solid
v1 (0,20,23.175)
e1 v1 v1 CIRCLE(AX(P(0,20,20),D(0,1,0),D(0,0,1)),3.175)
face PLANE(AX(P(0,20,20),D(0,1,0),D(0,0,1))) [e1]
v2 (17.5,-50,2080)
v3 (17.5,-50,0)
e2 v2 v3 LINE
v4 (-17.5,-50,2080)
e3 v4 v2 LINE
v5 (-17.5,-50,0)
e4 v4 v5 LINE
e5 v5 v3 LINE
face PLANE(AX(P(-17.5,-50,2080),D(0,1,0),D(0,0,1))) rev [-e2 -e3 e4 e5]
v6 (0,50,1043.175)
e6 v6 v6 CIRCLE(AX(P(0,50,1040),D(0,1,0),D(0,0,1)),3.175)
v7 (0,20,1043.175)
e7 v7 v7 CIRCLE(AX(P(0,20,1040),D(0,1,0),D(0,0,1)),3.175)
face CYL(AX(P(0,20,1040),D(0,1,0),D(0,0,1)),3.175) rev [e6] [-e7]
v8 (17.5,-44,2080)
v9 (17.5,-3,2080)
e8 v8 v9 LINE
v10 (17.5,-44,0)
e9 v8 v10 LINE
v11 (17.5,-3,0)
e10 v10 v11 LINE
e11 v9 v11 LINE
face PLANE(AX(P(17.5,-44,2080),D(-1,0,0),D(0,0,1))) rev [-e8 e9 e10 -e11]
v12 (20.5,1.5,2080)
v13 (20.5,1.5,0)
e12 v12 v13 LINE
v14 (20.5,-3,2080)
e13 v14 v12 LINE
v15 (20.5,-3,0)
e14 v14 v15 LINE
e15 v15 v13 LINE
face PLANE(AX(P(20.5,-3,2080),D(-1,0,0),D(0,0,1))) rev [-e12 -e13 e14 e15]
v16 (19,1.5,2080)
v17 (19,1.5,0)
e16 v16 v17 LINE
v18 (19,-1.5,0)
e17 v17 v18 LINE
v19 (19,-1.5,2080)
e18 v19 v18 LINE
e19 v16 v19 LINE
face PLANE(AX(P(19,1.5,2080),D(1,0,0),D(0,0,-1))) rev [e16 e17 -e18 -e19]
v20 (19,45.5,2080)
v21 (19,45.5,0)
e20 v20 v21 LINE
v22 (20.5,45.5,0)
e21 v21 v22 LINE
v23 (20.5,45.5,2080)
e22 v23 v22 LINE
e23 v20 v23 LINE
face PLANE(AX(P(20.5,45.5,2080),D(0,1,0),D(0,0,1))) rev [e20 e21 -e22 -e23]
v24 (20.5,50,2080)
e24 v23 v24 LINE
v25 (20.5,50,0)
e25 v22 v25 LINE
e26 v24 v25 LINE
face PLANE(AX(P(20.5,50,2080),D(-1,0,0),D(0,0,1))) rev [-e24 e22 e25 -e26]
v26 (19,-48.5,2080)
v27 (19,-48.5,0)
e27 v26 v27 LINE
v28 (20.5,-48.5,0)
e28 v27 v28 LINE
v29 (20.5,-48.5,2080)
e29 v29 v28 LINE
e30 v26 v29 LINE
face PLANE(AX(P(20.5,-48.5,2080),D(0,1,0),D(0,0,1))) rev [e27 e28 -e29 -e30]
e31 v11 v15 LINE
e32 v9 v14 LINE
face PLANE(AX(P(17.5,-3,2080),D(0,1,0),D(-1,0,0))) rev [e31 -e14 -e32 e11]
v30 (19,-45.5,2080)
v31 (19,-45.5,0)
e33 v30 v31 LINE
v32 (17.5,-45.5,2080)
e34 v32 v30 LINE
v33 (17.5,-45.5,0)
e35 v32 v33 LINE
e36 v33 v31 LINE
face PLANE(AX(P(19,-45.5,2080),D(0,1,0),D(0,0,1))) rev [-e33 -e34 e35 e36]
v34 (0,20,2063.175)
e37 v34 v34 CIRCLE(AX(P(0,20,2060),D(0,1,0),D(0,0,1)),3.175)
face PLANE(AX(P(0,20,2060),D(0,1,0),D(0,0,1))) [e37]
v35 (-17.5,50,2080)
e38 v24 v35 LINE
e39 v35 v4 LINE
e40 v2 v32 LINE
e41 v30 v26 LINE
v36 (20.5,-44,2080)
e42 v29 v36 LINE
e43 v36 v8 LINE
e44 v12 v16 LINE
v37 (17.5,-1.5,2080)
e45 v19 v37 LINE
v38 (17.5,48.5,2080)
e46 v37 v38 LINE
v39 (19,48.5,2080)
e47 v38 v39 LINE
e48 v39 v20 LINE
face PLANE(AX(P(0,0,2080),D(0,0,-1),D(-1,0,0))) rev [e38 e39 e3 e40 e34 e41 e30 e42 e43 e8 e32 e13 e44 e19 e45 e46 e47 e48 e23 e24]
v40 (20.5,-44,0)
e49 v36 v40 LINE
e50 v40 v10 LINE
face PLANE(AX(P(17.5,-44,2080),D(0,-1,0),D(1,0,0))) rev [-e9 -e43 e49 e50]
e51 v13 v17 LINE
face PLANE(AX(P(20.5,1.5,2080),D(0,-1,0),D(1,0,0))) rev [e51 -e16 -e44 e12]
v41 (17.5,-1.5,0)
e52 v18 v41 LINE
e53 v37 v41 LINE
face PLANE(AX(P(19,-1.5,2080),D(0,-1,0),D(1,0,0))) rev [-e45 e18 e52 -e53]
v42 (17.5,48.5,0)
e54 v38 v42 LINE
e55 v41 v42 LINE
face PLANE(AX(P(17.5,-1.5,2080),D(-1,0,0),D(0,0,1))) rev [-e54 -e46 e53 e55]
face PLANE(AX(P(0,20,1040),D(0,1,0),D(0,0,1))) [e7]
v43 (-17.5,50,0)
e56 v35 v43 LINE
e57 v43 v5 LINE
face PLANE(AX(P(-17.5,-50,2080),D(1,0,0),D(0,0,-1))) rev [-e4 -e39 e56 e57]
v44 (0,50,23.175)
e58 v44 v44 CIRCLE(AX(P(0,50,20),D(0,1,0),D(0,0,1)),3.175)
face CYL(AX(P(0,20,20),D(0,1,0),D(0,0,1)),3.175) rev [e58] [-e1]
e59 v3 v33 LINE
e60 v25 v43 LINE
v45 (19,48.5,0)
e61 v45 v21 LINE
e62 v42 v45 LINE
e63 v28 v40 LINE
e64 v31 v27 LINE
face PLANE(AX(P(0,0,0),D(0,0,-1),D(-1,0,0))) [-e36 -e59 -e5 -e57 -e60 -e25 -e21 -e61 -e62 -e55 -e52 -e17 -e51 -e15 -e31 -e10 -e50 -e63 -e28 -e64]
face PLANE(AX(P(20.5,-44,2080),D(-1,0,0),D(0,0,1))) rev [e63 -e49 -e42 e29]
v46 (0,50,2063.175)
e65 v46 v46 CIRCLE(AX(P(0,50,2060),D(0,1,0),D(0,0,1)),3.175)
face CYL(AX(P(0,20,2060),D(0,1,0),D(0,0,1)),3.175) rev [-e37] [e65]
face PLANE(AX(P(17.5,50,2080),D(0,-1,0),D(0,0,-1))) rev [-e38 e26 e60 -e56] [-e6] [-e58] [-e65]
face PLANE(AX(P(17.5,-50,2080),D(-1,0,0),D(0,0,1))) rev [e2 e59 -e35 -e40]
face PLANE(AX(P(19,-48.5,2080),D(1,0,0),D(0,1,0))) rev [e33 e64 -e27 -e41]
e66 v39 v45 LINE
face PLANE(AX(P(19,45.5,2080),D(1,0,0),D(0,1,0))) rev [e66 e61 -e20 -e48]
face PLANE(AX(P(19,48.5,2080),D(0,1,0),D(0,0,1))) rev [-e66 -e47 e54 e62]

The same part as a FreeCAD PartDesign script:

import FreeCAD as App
import Part
import Sketcher
from FreeCAD import Vector
Q = App.Units.Quantity

doc = App.newDocument("Part")
params = doc.addObject("Spreadsheet::Sheet", "Params")
for row, (alias, value) in enumerate([
    ("sketch1_width", "38 mm"),
    ("sketch1_width2", "35 mm"),
    ("sketch1_height", "100 mm"),
    ("sketch1_height2", "41 mm"),
    ("sketch1_height3", "50 mm"),
    ("pad1_length", "2080 mm"),
    ("sketch2_diameter", "6.35 mm"),
    ("pocket1_length", "30 mm"),
], start=1):
    params.set(f"A{row}", alias)
    params.set(f"B{row}", "=" + value)
    params.setAlias(f"B{row}", alias)

body = doc.addObject("PartDesign::Body", "Body")

# Sketch on XY plane
sketch1 = body.newObject("Sketcher::SketchObject", "Sketch")
sketch1.AttachmentSupport = (doc.getObject("XY_Plane"), [""])
sketch1.MapMode = "FlatFace"
sketch1.addGeometry(Part.LineSegment(Vector(20.5, 50, 0), Vector(-17.5, 50, 0)), False)
sketch1.addGeometry(Part.LineSegment(Vector(-17.5, 50, 0), Vector(-17.5, -50, 0)), False)
sketch1.addGeometry(Part.LineSegment(Vector(-17.5, -50, 0), Vector(17.5, -50, 0)), False)
sketch1.addGeometry(Part.LineSegment(Vector(17.5, -50, 0), Vector(17.5, -45.5, 0)), False)
sketch1.addGeometry(Part.LineSegment(Vector(17.5, -45.5, 0), Vector(19, -45.5, 0)), False)
sketch1.addGeometry(Part.LineSegment(Vector(19, -45.5, 0), Vector(19, -48.5, 0)), False)
sketch1.addGeometry(Part.LineSegment(Vector(19, -48.5, 0), Vector(20.5, -48.5, 0)), False)
sketch1.addGeometry(Part.LineSegment(Vector(20.5, -48.5, 0), Vector(20.5, -44, 0)), False)
sketch1.addGeometry(Part.LineSegment(Vector(20.5, -44, 0), Vector(17.5, -44, 0)), False)
sketch1.addGeometry(Part.LineSegment(Vector(17.5, -44, 0), Vector(17.5, -3, 0)), False)
sketch1.addGeometry(Part.LineSegment(Vector(17.5, -3, 0), Vector(20.5, -3, 0)), False)
sketch1.addGeometry(Part.LineSegment(Vector(20.5, -3, 0), Vector(20.5, 1.5, 0)), False)
sketch1.addGeometry(Part.LineSegment(Vector(20.5, 1.5, 0), Vector(19, 1.5, 0)), False)
sketch1.addGeometry(Part.LineSegment(Vector(19, 1.5, 0), Vector(19, -1.5, 0)), False)
sketch1.addGeometry(Part.LineSegment(Vector(19, -1.5, 0), Vector(17.5, -1.5, 0)), False)
sketch1.addGeometry(Part.LineSegment(Vector(17.5, -1.5, 0), Vector(17.5, 48.5, 0)), False)
sketch1.addGeometry(Part.LineSegment(Vector(17.5, 48.5, 0), Vector(19, 48.5, 0)), False)
sketch1.addGeometry(Part.LineSegment(Vector(19, 48.5, 0), Vector(19, 45.5, 0)), False)
sketch1.addGeometry(Part.LineSegment(Vector(19, 45.5, 0), Vector(20.5, 45.5, 0)), False)
sketch1.addGeometry(Part.LineSegment(Vector(20.5, 45.5, 0), Vector(20.5, 50, 0)), False)
sketch1.addConstraint(Sketcher.Constraint("Coincident", 0, 2, 1, 1))
sketch1.addConstraint(Sketcher.Constraint("Coincident", 1, 2, 2, 1))
sketch1.addConstraint(Sketcher.Constraint("Coincident", 2, 2, 3, 1))
sketch1.addConstraint(Sketcher.Constraint("Coincident", 3, 2, 4, 1))
sketch1.addConstraint(Sketcher.Constraint("Coincident", 4, 2, 5, 1))
sketch1.addConstraint(Sketcher.Constraint("Coincident", 5, 2, 6, 1))
sketch1.addConstraint(Sketcher.Constraint("Coincident", 6, 2, 7, 1))
sketch1.addConstraint(Sketcher.Constraint("Coincident", 7, 2, 8, 1))
sketch1.addConstraint(Sketcher.Constraint("Coincident", 8, 2, 9, 1))
sketch1.addConstraint(Sketcher.Constraint("Coincident", 9, 2, 10, 1))
sketch1.addConstraint(Sketcher.Constraint("Coincident", 10, 2, 11, 1))
sketch1.addConstraint(Sketcher.Constraint("Coincident", 11, 2, 12, 1))
sketch1.addConstraint(Sketcher.Constraint("Coincident", 12, 2, 13, 1))
sketch1.addConstraint(Sketcher.Constraint("Coincident", 13, 2, 14, 1))
sketch1.addConstraint(Sketcher.Constraint("Coincident", 14, 2, 15, 1))
sketch1.addConstraint(Sketcher.Constraint("Coincident", 15, 2, 16, 1))
sketch1.addConstraint(Sketcher.Constraint("Coincident", 16, 2, 17, 1))
sketch1.addConstraint(Sketcher.Constraint("Coincident", 17, 2, 18, 1))
sketch1.addConstraint(Sketcher.Constraint("Coincident", 18, 2, 19, 1))
sketch1.addConstraint(Sketcher.Constraint("Coincident", 19, 2, 0, 1))
sketch1.addConstraint(Sketcher.Constraint("Horizontal", 0))
sketch1.addConstraint(Sketcher.Constraint("Vertical", 1))
sketch1.addConstraint(Sketcher.Constraint("Horizontal", 2))
sketch1.addConstraint(Sketcher.Constraint("Vertical", 3))
sketch1.addConstraint(Sketcher.Constraint("Horizontal", 4))
sketch1.addConstraint(Sketcher.Constraint("Vertical", 5))
sketch1.addConstraint(Sketcher.Constraint("Horizontal", 6))
sketch1.addConstraint(Sketcher.Constraint("Vertical", 7))
sketch1.addConstraint(Sketcher.Constraint("Horizontal", 8))
sketch1.addConstraint(Sketcher.Constraint("Vertical", 9))
sketch1.addConstraint(Sketcher.Constraint("Horizontal", 10))
sketch1.addConstraint(Sketcher.Constraint("Vertical", 11))
sketch1.addConstraint(Sketcher.Constraint("Horizontal", 12))
sketch1.addConstraint(Sketcher.Constraint("Vertical", 13))
sketch1.addConstraint(Sketcher.Constraint("Horizontal", 14))
sketch1.addConstraint(Sketcher.Constraint("Vertical", 15))
sketch1.addConstraint(Sketcher.Constraint("Horizontal", 16))
sketch1.addConstraint(Sketcher.Constraint("Vertical", 17))
sketch1.addConstraint(Sketcher.Constraint("Horizontal", 18))
sketch1.addConstraint(Sketcher.Constraint("Vertical", 19))
sketch1.addConstraint(Sketcher.Constraint("Symmetric", 0, 2, 2, 2, -1, 1))
sketch1.addConstraint(Sketcher.Constraint("Symmetric", 5, 2, 16, 2, -1))
sketch1.addConstraint(Sketcher.Constraint("Vertical", 3, 2, 8, 2))
sketch1.addConstraint(Sketcher.Constraint("Vertical", 7, 2, 10, 2))
sketch1.addConstraint(Sketcher.Constraint("Vertical", 5, 2, 12, 2))
sketch1.addConstraint(Sketcher.Constraint("Vertical", 9, 2, 14, 2))
sketch1.addConstraint(Sketcher.Constraint("Vertical", 11, 2, 18, 2))
sketch1.addConstraint(Sketcher.Constraint("Equal", 4, 6))
sketch1.addConstraint(Sketcher.Constraint("Equal", 10, 5))
sketch1.addConstraint(Sketcher.Constraint("Equal", 3, 7))
sketch1.addConstraint(Sketcher.Constraint("Equal", 7, 11))
sketch1.addConstraint(Sketcher.Constraint("Equal", 5, 13))
sketch1.addConstraint(Sketcher.Constraint("Equal", 13, 17))
sketch1.addConstraint(Sketcher.Constraint("DistanceX", 0, 2, 0, 1, Q("38 mm")))
sketch1.addConstraint(Sketcher.Constraint("DistanceX", 2, 1, 2, 2, Q("35 mm")))
sketch1.addConstraint(Sketcher.Constraint("DistanceY", 1, 2, 1, 1, Q("100 mm")))
sketch1.addConstraint(Sketcher.Constraint("DistanceY", 9, 1, 9, 2, Q("41 mm")))
sketch1.addConstraint(Sketcher.Constraint("DistanceY", 15, 1, 15, 2, Q("50 mm")))
sketch1.setExpression("Constraints[53]", "Params.sketch1_width")
sketch1.setExpression("Constraints[54]", "Params.sketch1_width2")
sketch1.setExpression("Constraints[55]", "Params.sketch1_height")
sketch1.setExpression("Constraints[56]", "Params.sketch1_height2")
sketch1.setExpression("Constraints[57]", "Params.sketch1_height3")
pad1 = body.newObject("PartDesign::Pad", "Pad")
pad1.Profile = sketch1
pad1.setExpression("Length", "Params.pad1_length")

# Sketch on XZ plane
sketch2 = body.newObject("Sketcher::SketchObject", "Sketch001")
sketch2.AttachmentSupport = (doc.getObject("XZ_Plane"), [""])
sketch2.MapMode = "FlatFace"
sketch2.AttachmentOffset = App.Placement(Vector(0, 0, -50), App.Rotation())
sketch2.addGeometry(Part.Circle(Vector(0, 20, 0), Vector(0, 0, 1), 3.2), False)
sketch2.addGeometry(Part.Circle(Vector(0, 1040, 0), Vector(0, 0, 1), 3.2), False)
sketch2.addGeometry(Part.Circle(Vector(0, 2060, 0), Vector(0, 0, 1), 3.2), False)
sketch2.addConstraint(Sketcher.Constraint("Equal", 0, 1))
sketch2.addConstraint(Sketcher.Constraint("Equal", 1, 2))
sketch2.addConstraint(Sketcher.Constraint("PointOnObject", 0, 3, -2))
sketch2.addConstraint(Sketcher.Constraint("PointOnObject", 1, 3, -2))
sketch2.addConstraint(Sketcher.Constraint("PointOnObject", 2, 3, -2))
sketch2.addConstraint(Sketcher.Constraint("Diameter", 0, Q("6.35 mm")))
sketch2.addConstraint(Sketcher.Constraint("DistanceY", -1, 1, 0, 3, Q("20 mm")))
sketch2.addConstraint(Sketcher.Constraint("DistanceY", -1, 1, 1, 3, Q("1040 mm")))
sketch2.addConstraint(Sketcher.Constraint("DistanceY", -1, 1, 2, 3, Q("2060 mm")))
sketch2.setExpression("Constraints[5]", "Params.sketch2_diameter")
pocket1 = body.newObject("PartDesign::Pocket", "Pocket")
pocket1.Profile = sketch2
pocket1.setExpression("Length", "Params.pocket1_length")
pocket1.Reversed = True

doc.recompute()
